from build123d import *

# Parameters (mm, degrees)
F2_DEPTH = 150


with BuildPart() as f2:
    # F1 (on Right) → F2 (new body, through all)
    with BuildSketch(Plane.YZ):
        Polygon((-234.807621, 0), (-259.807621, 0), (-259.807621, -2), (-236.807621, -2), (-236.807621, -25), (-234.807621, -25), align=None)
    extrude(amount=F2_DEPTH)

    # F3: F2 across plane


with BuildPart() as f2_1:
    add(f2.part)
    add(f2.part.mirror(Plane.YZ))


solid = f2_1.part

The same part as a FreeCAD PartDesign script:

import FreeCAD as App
import Part
import Sketcher
Q = App.Units.Quantity

doc = App.newDocument("Part")
params = doc.addObject("Spreadsheet::Sheet", "Params")
for row, (alias, value) in enumerate([
    ("sketch1_width", "25 mm"),
    ("sketch1_width2", "23 mm"),
    ("pad1_length", "150 mm"),
], start=1):
    params.set(f"A{row}", alias)
    params.set(f"B{row}", "=" + value)
    params.setAlias(f"B{row}", alias)

body = doc.addObject("PartDesign::Body", "Body")

# Sketch on YZ plane
sketch1 = body.newObject("Sketcher::SketchObject", "Sketch")
sketch1.AttachmentSupport = (doc.getObject("YZ_Plane"), [""])
sketch1.MapMode = "FlatFace"
sketch1.addGeometry([
    Part.LineSegment(App.Vector(-234.8, 0, 0), App.Vector(-259.8, 0, 0)),  # 0
    Part.LineSegment(App.Vector(-259.8, 0, 0), App.Vector(-259.8, -2, 0)),  # 1
    Part.LineSegment(App.Vector(-259.8, -2, 0), App.Vector(-236.8, -2, 0)),  # 2
    Part.LineSegment(App.Vector(-236.8, -2, 0), App.Vector(-236.8, -25, 0)),  # 3
    Part.LineSegment(App.Vector(-236.8, -25, 0), App.Vector(-234.8, -25, 0)),  # 4
    Part.LineSegment(App.Vector(-234.8, -25, 0), App.Vector(-234.8, 0, 0)),  # 5
], False)
sketch1.addConstraint([
    Sketcher.Constraint("Coincident", 0, 2, 1, 1),
    Sketcher.Constraint("Coincident", 1, 2, 2, 1),
    Sketcher.Constraint("Coincident", 2, 2, 3, 1),
    Sketcher.Constraint("Coincident", 3, 2, 4, 1),
    Sketcher.Constraint("Coincident", 4, 2, 5, 1),
    Sketcher.Constraint("Coincident", 5, 2, 0, 1),
    Sketcher.Constraint("Horizontal", 0),
    Sketcher.Constraint("Vertical", 1),
    Sketcher.Constraint("Horizontal", 2),
    Sketcher.Constraint("Vertical", 3),
    Sketcher.Constraint("Horizontal", 4),
    Sketcher.Constraint("Vertical", 5),
    Sketcher.Constraint("PointOnObject", 0, 2, -1),
    Sketcher.Constraint("Equal", 4, 1),
    Sketcher.Constraint("Equal", 2, 3),
    Sketcher.Constraint("DistanceX", 0, 2, 0, 1, Q("25 mm")),
    Sketcher.Constraint("DistanceX", 2, 1, 2, 2, Q("23 mm")),
    Sketcher.Constraint("DistanceX", 0, 2, -1, 1, Q("259.807621 mm")),
])
sketch1.setExpression("Constraints[15]", "Params.sketch1_width")
sketch1.setExpression("Constraints[16]", "Params.sketch1_width2")
pad1 = body.newObject("PartDesign::Pad", "Pad")
pad1.Profile = sketch1
pad1.setExpression("Length", "Params.pad1_length")
body2 = doc.addObject("PartDesign::Body", "Body001")
doc.recompute()

body2.BaseFeature = body
doc.recompute()

mirroring = doc.addObject("Part::Mirroring", "Mirroring")
mirroring.Source = body
mirroring.Base = App.Vector(0, 0, 0)
mirroring.Normal = App.Vector(1, 0, 0)
body3 = doc.addObject("PartDesign::Body", "Body002")
body3.BaseFeature = mirroring
boolean = body2.newObject("PartDesign::Boolean", "Boolean")
boolean.Type = "Fuse"
boolean.addObjects([body3])
doc.recompute()
mirroring.Visibility = False

doc.recompute()
